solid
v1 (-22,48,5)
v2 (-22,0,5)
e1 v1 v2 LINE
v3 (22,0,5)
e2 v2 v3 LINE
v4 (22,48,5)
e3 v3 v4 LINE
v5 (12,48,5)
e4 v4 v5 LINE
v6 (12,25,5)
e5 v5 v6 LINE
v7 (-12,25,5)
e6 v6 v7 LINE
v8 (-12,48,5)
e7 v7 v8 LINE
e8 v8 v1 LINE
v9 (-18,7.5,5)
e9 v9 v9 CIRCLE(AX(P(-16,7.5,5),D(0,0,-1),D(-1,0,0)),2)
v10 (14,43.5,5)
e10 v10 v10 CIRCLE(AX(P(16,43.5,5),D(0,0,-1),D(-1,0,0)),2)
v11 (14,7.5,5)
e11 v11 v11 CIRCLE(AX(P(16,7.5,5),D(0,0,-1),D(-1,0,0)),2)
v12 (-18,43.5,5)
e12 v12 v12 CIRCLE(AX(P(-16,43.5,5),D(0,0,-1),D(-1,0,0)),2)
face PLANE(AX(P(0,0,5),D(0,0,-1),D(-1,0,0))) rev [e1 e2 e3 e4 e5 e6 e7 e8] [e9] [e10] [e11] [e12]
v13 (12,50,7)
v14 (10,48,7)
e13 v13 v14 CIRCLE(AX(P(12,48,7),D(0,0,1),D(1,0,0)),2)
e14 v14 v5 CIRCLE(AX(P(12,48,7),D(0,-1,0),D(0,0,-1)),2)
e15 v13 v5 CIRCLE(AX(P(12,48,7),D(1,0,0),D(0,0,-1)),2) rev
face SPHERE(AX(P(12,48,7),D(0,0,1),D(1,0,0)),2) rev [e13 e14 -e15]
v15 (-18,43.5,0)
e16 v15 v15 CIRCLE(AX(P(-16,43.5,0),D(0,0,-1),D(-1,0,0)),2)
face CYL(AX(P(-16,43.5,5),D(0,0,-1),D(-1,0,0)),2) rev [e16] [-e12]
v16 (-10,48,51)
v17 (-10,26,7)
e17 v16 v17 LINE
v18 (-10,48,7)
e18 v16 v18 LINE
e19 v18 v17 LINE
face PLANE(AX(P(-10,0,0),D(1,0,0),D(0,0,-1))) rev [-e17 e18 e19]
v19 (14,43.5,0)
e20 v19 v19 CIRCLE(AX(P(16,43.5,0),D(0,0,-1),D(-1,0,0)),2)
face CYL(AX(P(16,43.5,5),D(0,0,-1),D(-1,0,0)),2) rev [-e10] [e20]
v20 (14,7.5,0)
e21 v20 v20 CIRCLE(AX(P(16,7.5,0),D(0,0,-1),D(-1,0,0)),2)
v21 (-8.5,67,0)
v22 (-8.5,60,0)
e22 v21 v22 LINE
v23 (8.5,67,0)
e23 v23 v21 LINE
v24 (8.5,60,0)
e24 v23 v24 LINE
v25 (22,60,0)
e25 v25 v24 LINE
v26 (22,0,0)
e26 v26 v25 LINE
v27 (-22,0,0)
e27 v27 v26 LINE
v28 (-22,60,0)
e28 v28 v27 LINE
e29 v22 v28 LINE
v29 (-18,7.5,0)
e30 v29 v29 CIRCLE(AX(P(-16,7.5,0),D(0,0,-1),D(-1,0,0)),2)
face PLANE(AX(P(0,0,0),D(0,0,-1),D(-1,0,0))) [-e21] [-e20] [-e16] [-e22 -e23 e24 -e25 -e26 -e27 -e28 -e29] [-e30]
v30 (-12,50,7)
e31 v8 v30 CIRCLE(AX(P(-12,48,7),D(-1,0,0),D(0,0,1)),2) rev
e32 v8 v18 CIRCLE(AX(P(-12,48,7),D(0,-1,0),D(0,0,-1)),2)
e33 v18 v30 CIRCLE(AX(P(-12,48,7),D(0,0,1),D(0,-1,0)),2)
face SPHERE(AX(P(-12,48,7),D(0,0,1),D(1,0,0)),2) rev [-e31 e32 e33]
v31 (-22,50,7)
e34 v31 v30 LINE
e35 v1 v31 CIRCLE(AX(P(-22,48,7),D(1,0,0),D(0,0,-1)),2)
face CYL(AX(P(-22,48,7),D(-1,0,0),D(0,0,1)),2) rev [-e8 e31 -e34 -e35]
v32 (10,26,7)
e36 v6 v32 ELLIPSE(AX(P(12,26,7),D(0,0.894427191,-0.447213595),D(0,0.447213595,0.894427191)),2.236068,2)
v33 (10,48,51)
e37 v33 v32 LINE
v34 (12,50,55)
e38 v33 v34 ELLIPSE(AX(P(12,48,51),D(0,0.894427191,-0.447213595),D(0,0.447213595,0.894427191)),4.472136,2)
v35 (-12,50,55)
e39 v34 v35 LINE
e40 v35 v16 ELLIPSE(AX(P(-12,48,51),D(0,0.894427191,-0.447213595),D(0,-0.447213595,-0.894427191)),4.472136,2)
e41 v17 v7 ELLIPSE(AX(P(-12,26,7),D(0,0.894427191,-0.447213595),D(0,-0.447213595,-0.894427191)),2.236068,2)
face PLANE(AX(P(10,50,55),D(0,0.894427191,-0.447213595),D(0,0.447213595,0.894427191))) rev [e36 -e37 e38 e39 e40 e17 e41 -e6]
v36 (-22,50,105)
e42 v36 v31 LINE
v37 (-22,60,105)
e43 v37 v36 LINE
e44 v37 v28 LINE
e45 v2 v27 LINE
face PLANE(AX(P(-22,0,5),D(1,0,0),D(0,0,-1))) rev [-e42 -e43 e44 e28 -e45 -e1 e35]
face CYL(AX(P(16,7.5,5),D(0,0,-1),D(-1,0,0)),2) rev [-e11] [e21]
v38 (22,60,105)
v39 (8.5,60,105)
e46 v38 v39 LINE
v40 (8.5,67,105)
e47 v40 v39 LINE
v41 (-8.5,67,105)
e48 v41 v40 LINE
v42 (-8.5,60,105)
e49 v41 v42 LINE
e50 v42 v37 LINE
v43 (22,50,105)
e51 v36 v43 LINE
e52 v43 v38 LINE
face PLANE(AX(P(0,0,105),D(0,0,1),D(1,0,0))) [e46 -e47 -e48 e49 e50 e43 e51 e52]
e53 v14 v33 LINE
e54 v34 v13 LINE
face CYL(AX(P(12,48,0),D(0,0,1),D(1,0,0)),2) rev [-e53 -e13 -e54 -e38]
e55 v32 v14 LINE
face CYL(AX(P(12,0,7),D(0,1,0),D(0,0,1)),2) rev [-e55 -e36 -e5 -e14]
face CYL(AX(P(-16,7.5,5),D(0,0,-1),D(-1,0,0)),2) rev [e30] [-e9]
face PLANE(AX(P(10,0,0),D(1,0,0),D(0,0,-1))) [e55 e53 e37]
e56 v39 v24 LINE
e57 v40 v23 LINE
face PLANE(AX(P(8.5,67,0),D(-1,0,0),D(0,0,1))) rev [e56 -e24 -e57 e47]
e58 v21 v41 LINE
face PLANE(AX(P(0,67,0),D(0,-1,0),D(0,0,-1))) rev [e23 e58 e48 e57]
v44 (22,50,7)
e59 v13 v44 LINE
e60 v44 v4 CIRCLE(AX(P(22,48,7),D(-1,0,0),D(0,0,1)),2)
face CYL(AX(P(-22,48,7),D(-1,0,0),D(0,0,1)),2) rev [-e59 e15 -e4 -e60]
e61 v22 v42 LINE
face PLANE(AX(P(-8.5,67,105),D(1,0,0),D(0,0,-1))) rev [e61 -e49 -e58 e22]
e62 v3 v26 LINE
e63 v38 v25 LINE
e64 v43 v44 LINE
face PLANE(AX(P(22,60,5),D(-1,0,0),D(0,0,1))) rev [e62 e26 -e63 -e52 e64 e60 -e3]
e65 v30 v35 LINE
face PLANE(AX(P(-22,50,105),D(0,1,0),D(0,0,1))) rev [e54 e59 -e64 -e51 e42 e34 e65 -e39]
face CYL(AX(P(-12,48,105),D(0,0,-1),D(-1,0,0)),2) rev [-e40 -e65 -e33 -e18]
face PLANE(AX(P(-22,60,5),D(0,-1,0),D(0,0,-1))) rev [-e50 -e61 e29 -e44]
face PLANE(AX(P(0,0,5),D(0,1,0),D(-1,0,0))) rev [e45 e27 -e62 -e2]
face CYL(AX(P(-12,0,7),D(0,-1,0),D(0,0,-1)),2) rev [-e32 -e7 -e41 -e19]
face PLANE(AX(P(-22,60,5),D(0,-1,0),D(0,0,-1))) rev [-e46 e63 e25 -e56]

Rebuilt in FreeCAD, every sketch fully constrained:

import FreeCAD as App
import Part
import Sketcher
from FreeCAD import Vector


def edges_at(feature, points):
    """Names of the edges that pass closest to the given points."""
    edges = feature.Shape.Edges
    near = lambda p: min(range(len(edges)), key=lambda i: edges[i].distToShape(Part.Vertex(*p))[0])
    return sorted({f"Edge{near(p) + 1}" for p in points})

doc = App.newDocument("Part")
body = doc.addObject("PartDesign::Body", "Body")

sketch1 = body.newObject("Sketcher::SketchObject", "Sketch")
sketch1.AttachmentSupport = (doc.getObject("XY_Plane"), [""])
sketch1.MapMode = "FlatFace"
sketch1.addGeometry(Part.LineSegment(Vector(-22, 0, 0), Vector(22, 0, 0)), False)
sketch1.addGeometry(Part.LineSegment(Vector(22, 0, 0), Vector(22, 60, 0)), False)
sketch1.addGeometry(Part.LineSegment(Vector(22, 60, 0), Vector(-22, 60, 0)), False)
sketch1.addGeometry(Part.LineSegment(Vector(-22, 60, 0), Vector(-22, 0, 0)), False)
sketch1.addConstraint(Sketcher.Constraint("Coincident", 0, 2, 1, 1))
sketch1.addConstraint(Sketcher.Constraint("Coincident", 1, 2, 2, 1))
sketch1.addConstraint(Sketcher.Constraint("Coincident", 2, 2, 3, 1))
sketch1.addConstraint(Sketcher.Constraint("Coincident", 3, 2, 0, 1))
sketch1.addConstraint(Sketcher.Constraint("Horizontal", 0))
sketch1.addConstraint(Sketcher.Constraint("Vertical", 1))
sketch1.addConstraint(Sketcher.Constraint("Horizontal", 2))
sketch1.addConstraint(Sketcher.Constraint("Vertical", 3))
sketch1.addConstraint(Sketcher.Constraint("Symmetric", 0, 2, 3, 2, -1, 1))
sketch1.addConstraint(Sketcher.Constraint("DistanceX", 0, 1, 0, 2, 44.0))
sketch1.addConstraint(Sketcher.Constraint("DistanceY", 1, 1, 1, 2, 60.0))
pad1 = body.newObject("PartDesign::Pad", "Pad")
pad1.Profile = sketch1
pad1.Length = 5

sketch2 = body.newObject("Sketcher::SketchObject", "Sketch001")
sketch2.AttachmentSupport = (doc.getObject("XY_Plane"), [""])
sketch2.MapMode = "FlatFace"
sketch2.addGeometry(Part.Circle(Vector(16, 43.5, 0), Vector(0, 0, 1), 2), False)
sketch2.addGeometry(Part.Circle(Vector(-16, 43.5, 0), Vector(0, 0, 1), 2), False)
sketch2.addGeometry(Part.Circle(Vector(16, 7.5, 0), Vector(0, 0, 1), 2), False)
sketch2.addGeometry(Part.Circle(Vector(-16, 7.5, 0), Vector(0, 0, 1), 2), False)
sketch2.addConstraint(Sketcher.Constraint("Equal", 0, 1))
sketch2.addConstraint(Sketcher.Constraint("Equal", 1, 2))
sketch2.addConstraint(Sketcher.Constraint("Equal", 2, 3))
sketch2.addConstraint(Sketcher.Constraint("Symmetric", 0, 3, 1, 3, -2))
sketch2.addConstraint(Sketcher.Constraint("Symmetric", 2, 3, 3, 3, -2))
sketch2.addConstraint(Sketcher.Constraint("Vertical", 0, 3, 2, 3))
sketch2.addConstraint(Sketcher.Constraint("Diameter", 0, 4.0))
sketch2.addConstraint(Sketcher.Constraint("DistanceX", -1, 1, 0, 3, 16.0))
sketch2.addConstraint(Sketcher.Constraint("DistanceY", 2, 3, 0, 3, 36.0))
sketch2.addConstraint(Sketcher.Constraint("DistanceY", -1, 1, 0, 3, 43.5))
pocket1 = body.newObject("PartDesign::Pocket", "Pocket")
pocket1.Profile = sketch2
pocket1.Length = 5
pocket1.Reversed = True

sketch3 = body.newObject("Sketcher::SketchObject", "Sketch002")
sketch3.AttachmentSupport = (doc.getObject("XY_Plane"), [""])
sketch3.MapMode = "FlatFace"
sketch3.AttachmentOffset = App.Placement(Vector(0, 0, 5), App.Rotation())
sketch3.addGeometry(Part.LineSegment(Vector(-22, 60, 0), Vector(-22, 50, 0)), False)
sketch3.addGeometry(Part.LineSegment(Vector(-22, 50, 0), Vector(22, 50, 0)), False)
sketch3.addGeometry(Part.LineSegment(Vector(22, 50, 0), Vector(22, 60, 0)), False)
sketch3.addGeometry(Part.LineSegment(Vector(22, 60, 0), Vector(-22, 60, 0)), False)
sketch3.addConstraint(Sketcher.Constraint("Coincident", 0, 2, 1, 1))
sketch3.addConstraint(Sketcher.Constraint("Coincident", 1, 2, 2, 1))
sketch3.addConstraint(Sketcher.Constraint("Coincident", 2, 2, 3, 1))
sketch3.addConstraint(Sketcher.Constraint("Coincident", 3, 2, 0, 1))
sketch3.addConstraint(Sketcher.Constraint("Vertical", 0))
sketch3.addConstraint(Sketcher.Constraint("Horizontal", 1))
sketch3.addConstraint(Sketcher.Constraint("Vertical", 2))
sketch3.addConstraint(Sketcher.Constraint("Horizontal", 3))
sketch3.addConstraint(Sketcher.Constraint("DistanceX", 1, 1, 1, 2, 44.0))
sketch3.addConstraint(Sketcher.Constraint("DistanceY", 0, 2, 0, 1, 10.0))
sketch3.addConstraint(Sketcher.Constraint("DistanceX", 0, 2, -1, 1, 22.0))
sketch3.addConstraint(Sketcher.Constraint("DistanceY", -1, 1, 0, 2, 50.0))
pad2 = body.newObject("PartDesign::Pad", "Pad001")
pad2.Profile = sketch3
pad2.Length = 100

sketch4 = body.newObject("Sketcher::SketchObject", "Sketch003")
sketch4.AttachmentSupport = (doc.getObject("YZ_Plane"), [""])
sketch4.MapMode = "FlatFace"
sketch4.addGeometry(Part.LineSegment(Vector(25, 5, 0), Vector(50, 5, 0)), False)
sketch4.addGeometry(Part.LineSegment(Vector(50, 5, 0), Vector(50, 55, 0)), False)
sketch4.addGeometry(Part.LineSegment(Vector(50, 55, 0), Vector(25, 5, 0)), False)
sketch4.addConstraint(Sketcher.Constraint("Coincident", 0, 2, 1, 1))
sketch4.addConstraint(Sketcher.Constraint("Coincident", 1, 2, 2, 1))
sketch4.addConstraint(Sketcher.Constraint("Coincident", 2, 2, 0, 1))
sketch4.addConstraint(Sketcher.Constraint("Horizontal", 0))
sketch4.addConstraint(Sketcher.Constraint("Vertical", 1))
sketch4.addConstraint(Sketcher.Constraint("DistanceX", 0, 1, 0, 2, 25.0))
sketch4.addConstraint(Sketcher.Constraint("DistanceY", 1, 1, 1, 2, 50.0))
sketch4.addConstraint(Sketcher.Constraint("DistanceX", -1, 1, 0, 2, 50.0))
sketch4.addConstraint(Sketcher.Constraint("DistanceY", -1, 1, 0, 2, 5.0))
pad3 = body.newObject("PartDesign::Pad", "Pad002")
pad3.Profile = sketch4
pad3.Length = 20
pad3.Midplane = True
doc.recompute()

fillet = body.newObject("PartDesign::Fillet", "Fillet")
fillet.Base = (pad3, edges_at(pad3, [
    (16, 50, 5),
    (10, 37.5, 5),
    (10, 50, 30),
    (-16, 50, 5),
    (-10, 37.5, 5),
    (-10, 50, 30),
]))
fillet.Radius = 2

sketch5 = body.newObject("Sketcher::SketchObject", "Sketch004")
sketch5.AttachmentSupport = (doc.getObject("XZ_Plane"), [""])
sketch5.MapMode = "FlatFace"
sketch5.AttachmentOffset = App.Placement(Vector(0, 0, -60), App.Rotation())
sketch5.addGeometry(Part.LineSegment(Vector(-8, 0, 0), Vector(-8, 105, 0)), False)
sketch5.addGeometry(Part.LineSegment(Vector(-8, 105, 0), Vector(8, 105, 0)), False)
sketch5.addGeometry(Part.LineSegment(Vector(8, 105, 0), Vector(8, 0, 0)), False)
sketch5.addGeometry(Part.LineSegment(Vector(8, 0, 0), Vector(-8, 0, 0)), False)
sketch5.addConstraint(Sketcher.Constraint("Coincident", 0, 2, 1, 1))
sketch5.addConstraint(Sketcher.Constraint("Coincident", 1, 2, 2, 1))
sketch5.addConstraint(Sketcher.Constraint("Coincident", 2, 2, 3, 1))
sketch5.addConstraint(Sketcher.Constraint("Coincident", 3, 2, 0, 1))
sketch5.addConstraint(Sketcher.Constraint("Vertical", 0))
sketch5.addConstraint(Sketcher.Constraint("Horizontal", 1))
sketch5.addConstraint(Sketcher.Constraint("Vertical", 2))
sketch5.addConstraint(Sketcher.Constraint("Horizontal", 3))
sketch5.addConstraint(Sketcher.Constraint("Symmetric", 2, 2, 3, 2, -1, 1))
sketch5.addConstraint(Sketcher.Constraint("DistanceX", 1, 1, 1, 2, 17.0))
sketch5.addConstraint(Sketcher.Constraint("DistanceY", 0, 1, 0, 2, 105.0))
pad4 = body.newObject("PartDesign::Pad", "Pad003")
pad4.Profile = sketch5
pad4.Length = 7
pad4.Reversed = True

doc.recompute()
